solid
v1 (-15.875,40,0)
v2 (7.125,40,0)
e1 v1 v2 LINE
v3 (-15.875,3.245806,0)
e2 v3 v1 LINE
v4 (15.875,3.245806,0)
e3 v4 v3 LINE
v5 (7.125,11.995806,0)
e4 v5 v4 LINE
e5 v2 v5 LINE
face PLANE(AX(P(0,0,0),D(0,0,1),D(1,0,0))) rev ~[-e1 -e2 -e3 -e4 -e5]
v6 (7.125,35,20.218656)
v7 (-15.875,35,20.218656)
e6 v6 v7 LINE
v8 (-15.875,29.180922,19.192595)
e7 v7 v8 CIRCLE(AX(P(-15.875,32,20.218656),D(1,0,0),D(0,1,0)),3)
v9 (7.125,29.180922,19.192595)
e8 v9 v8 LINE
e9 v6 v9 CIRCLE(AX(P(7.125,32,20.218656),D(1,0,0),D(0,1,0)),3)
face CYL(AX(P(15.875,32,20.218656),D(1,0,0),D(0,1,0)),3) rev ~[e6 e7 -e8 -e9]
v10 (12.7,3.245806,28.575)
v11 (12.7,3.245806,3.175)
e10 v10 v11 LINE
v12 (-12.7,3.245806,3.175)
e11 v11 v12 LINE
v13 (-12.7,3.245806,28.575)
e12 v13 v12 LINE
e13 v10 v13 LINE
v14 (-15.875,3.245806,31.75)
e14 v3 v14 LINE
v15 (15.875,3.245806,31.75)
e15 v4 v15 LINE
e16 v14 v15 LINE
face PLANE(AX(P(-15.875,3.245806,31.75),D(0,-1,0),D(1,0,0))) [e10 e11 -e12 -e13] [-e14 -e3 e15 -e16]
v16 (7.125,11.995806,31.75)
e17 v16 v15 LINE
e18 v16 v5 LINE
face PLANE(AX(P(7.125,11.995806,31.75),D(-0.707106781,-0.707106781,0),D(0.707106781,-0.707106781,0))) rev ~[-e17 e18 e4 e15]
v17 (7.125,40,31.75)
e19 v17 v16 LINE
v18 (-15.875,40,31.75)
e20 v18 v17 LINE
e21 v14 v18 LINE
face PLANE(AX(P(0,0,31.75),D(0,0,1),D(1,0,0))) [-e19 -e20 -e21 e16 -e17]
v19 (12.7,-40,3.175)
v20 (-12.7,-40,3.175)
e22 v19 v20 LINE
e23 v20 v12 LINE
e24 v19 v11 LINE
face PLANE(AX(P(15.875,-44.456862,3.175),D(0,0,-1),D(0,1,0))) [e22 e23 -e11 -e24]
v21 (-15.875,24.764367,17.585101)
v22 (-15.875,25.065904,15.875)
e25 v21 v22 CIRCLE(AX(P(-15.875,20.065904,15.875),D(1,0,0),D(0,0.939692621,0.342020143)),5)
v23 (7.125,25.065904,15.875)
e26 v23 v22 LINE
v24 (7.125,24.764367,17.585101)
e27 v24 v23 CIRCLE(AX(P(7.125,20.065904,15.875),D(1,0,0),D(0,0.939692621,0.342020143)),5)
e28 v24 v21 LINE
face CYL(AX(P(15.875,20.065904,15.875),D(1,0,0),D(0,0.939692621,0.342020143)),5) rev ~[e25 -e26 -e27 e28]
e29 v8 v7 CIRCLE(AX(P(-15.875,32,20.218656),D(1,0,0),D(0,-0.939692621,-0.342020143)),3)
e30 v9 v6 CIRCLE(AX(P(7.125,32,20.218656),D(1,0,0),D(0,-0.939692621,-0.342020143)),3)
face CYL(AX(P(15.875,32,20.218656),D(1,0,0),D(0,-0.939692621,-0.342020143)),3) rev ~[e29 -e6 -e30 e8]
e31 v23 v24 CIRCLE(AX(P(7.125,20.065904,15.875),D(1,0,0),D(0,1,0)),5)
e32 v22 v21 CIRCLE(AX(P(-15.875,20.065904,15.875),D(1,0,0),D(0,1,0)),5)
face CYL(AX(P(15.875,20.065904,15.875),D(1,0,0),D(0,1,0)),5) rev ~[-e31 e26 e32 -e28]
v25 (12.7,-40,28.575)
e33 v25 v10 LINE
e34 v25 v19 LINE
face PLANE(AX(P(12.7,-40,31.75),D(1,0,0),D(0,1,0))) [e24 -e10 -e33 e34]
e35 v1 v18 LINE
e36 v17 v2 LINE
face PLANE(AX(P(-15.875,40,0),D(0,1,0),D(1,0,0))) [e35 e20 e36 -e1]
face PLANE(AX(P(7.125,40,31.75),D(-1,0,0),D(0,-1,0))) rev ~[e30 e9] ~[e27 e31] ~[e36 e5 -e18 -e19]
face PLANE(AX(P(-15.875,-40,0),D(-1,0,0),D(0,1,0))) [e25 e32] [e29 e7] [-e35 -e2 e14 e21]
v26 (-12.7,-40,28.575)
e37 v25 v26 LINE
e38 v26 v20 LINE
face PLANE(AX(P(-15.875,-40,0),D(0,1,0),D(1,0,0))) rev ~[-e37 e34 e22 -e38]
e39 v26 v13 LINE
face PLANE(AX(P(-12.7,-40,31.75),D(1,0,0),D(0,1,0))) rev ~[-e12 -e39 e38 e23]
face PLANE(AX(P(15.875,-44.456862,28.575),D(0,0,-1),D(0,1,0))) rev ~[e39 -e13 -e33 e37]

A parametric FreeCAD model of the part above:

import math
import FreeCAD as App
import Part
import Sketcher

V = App.Vector
Q = App.Units.Quantity

doc = App.newDocument("Part")
params = doc.addObject("Spreadsheet::Sheet", "Params")
for row, (alias, value) in enumerate([
    ("sketch1_height", "80 mm"),
    ("sketch1_width", "31.75 mm"),
    ("pad1_length", "31.75 mm"),
    ("sketch2_radius", "5 mm"),
    ("sketch2_radius2", "3 mm"),
    ("sketch3_height", "10 mm"),
    ("sketch3_width", "25.4 mm"),
    ("sketch5_width", "8.75 mm"),
], start=1):
    params.set(f"A{row}", alias)
    params.set(f"B{row}", "=" + value)
    params.setAlias(f"B{row}", alias)

body = doc.addObject("PartDesign::Body", "Body")

sketch1 = body.newObject("Sketcher::SketchObject", "Sketch")
sketch1.AttachmentSupport = (doc.getObject("XY_Plane"), [""])
sketch1.MapMode = "FlatFace"
sketch1.addGeometry([
    Part.LineSegment(V(-16, 40, 0), V(-16, -40, 0)),
    Part.LineSegment(V(-16, -40, 0), V(16, -40, 0)),
    Part.LineSegment(V(16, -40, 0), V(16, 40, 0)),
    Part.LineSegment(V(16, 40, 0), V(-16, 40, 0)),
], False)
sketch1.addConstraint([
    Sketcher.Constraint("Coincident", 0, 2, 1, 1),
    Sketcher.Constraint("Coincident", 1, 2, 2, 1),
    Sketcher.Constraint("Coincident", 2, 2, 3, 1),
    Sketcher.Constraint("Coincident", 3, 2, 0, 1),
    Sketcher.Constraint("Vertical", 0),
    Sketcher.Constraint("Horizontal", 1),
    Sketcher.Constraint("Vertical", 2),
    Sketcher.Constraint("Horizontal", 3),
    Sketcher.Constraint("Symmetric", 0, 2, 2, 2, -1, 1),
    Sketcher.Constraint("DistanceY", 0, 2, 0, 1, 80.0),
    Sketcher.Constraint("DistanceX", 1, 1, 1, 2, 31.75),
])
sketch1.setExpression("Constraints[9]", "Params.sketch1_height")
sketch1.setExpression("Constraints[10]", "Params.sketch1_width")
pad1 = body.newObject("PartDesign::Pad", "Pad")
pad1.Profile = sketch1
pad1.setExpression("Length", "Params.pad1_length")

sketch2 = body.newObject("Sketcher::SketchObject", "Sketch001")
sketch2.AttachmentSupport = (doc.getObject("YZ_Plane"), [""])
sketch2.MapMode = "FlatFace"
sketch2.AttachmentOffset = App.Placement(V(0, 0, 15.875), App.Rotation())
sketch2.addGeometry([
    Part.ArcOfCircle(Part.Circle(V(20.1, 15.9, 0), V(0, 0, 1), 5), math.radians(0), math.radians(20)),
    Part.ArcOfCircle(Part.Circle(V(20.1, 15.9, 0), V(0, 0, 1), 5), math.radians(20), math.radians(360)),
    Part.ArcOfCircle(Part.Circle(V(32, 20.2, 0), V(0, 0, 1), 3), math.radians(0), math.radians(200)),
    Part.ArcOfCircle(Part.Circle(V(32, 20.2, 0), V(0, 0, 1), 3), math.radians(-160), math.radians(0)),
], False)
sketch2.addConstraint([
    Sketcher.Constraint("Tangent", 0, 1, 1, 2),
    Sketcher.Constraint("Coincident", 1, 1, 0, 2),
    Sketcher.Constraint("Tangent", 2, 1, 3, 2),
    Sketcher.Constraint("Coincident", 3, 1, 2, 2),
    Sketcher.Constraint("Horizontal", 1, 3, 0, 1),
    Sketcher.Constraint("Horizontal", 3, 3, 2, 1),
    Sketcher.Constraint("Radius", 0, 5.0),
    Sketcher.Constraint("Radius", 2, 3.0),
    Sketcher.Constraint("DistanceX", -1, 1, 2, 3, 32.0),
    Sketcher.Constraint("DistanceY", -1, 1, 0, 3, 15.875),
    Sketcher.Constraint("DistanceY", -1, 1, 1, 1, 17.585101),
    Sketcher.Constraint("DistanceY", 3, 1, 2, 3, 1.02606),
    Sketcher.Constraint("DistanceX", 0, 1, 3, 1, 4.115018),
    Sketcher.Constraint("DistanceY", -1, 1, 2, 3, 20.218656),
])
sketch2.setExpression("Constraints[6]", "Params.sketch2_radius")
sketch2.setExpression("Constraints[7]", "Params.sketch2_radius2")
pocket1 = body.newObject("PartDesign::Pocket", "Pocket")
pocket1.Profile = sketch2
pocket1.Type = "ThroughAll"

sketch3 = body.newObject("Sketcher::SketchObject", "Sketch002")
sketch3.AttachmentSupport = (doc.getObject("XY_Plane"), [""])
sketch3.MapMode = "FlatFace"
sketch3.AttachmentOffset = App.Placement(V(0, 0, 31.75), App.Rotation())
sketch3.addGeometry([
    Part.LineSegment(V(-12.7, -40, 0), V(-12.7, -50, 0)),
    Part.LineSegment(V(-12.7, -50, 0), V(12.7, -50, 0)),
    Part.LineSegment(V(12.7, -50, 0), V(12.7, -40, 0)),
    Part.LineSegment(V(12.7, -40, 0), V(-12.7, -40, 0)),
    Part.LineSegment(V(12.7, 3.2, 0), V(12.7, -40, 0)),
    Part.LineSegment(V(12.7, -40, 0), V(15.9, -40, 0)),
    Part.LineSegment(V(15.9, -40, 0), V(15.9, 3.2, 0)),
    Part.LineSegment(V(15.9, 3.2, 0), V(12.7, 3.2, 0)),
    Part.LineSegment(V(-15.9, 3.2, 0), V(-15.9, -40, 0)),
    Part.LineSegment(V(-15.9, -40, 0), V(-12.7, -40, 0)),
    Part.LineSegment(V(-12.7, -40, 0), V(-12.7, 3.2, 0)),
    Part.LineSegment(V(-12.7, 3.2, 0), V(-15.9, 3.2, 0)),
], False)
sketch3.addConstraint([
    Sketcher.Constraint("Coincident", 0, 2, 1, 1),
    Sketcher.Constraint("Coincident", 1, 2, 2, 1),
    Sketcher.Constraint("Coincident", 2, 2, 3, 1),
    Sketcher.Constraint("Coincident", 3, 2, 0, 1),
    Sketcher.Constraint("Coincident", 4, 2, 5, 1),
    Sketcher.Constraint("Coincident", 5, 2, 6, 1),
    Sketcher.Constraint("Coincident", 6, 2, 7, 1),
    Sketcher.Constraint("Coincident", 7, 2, 4, 1),
    Sketcher.Constraint("Coincident", 8, 2, 9, 1),
    Sketcher.Constraint("Coincident", 9, 2, 10, 1),
    Sketcher.Constraint("Coincident", 10, 2, 11, 1),
    Sketcher.Constraint("Coincident", 11, 2, 8, 1),
    Sketcher.Constraint("Vertical", 0),
    Sketcher.Constraint("Horizontal", 1),
    Sketcher.Constraint("Vertical", 2),
    Sketcher.Constraint("Horizontal", 3),
    Sketcher.Constraint("Vertical", 4),
    Sketcher.Constraint("Horizontal", 5),
    Sketcher.Constraint("Vertical", 6),
    Sketcher.Constraint("Horizontal", 7),
    Sketcher.Constraint("Vertical", 8),
    Sketcher.Constraint("Horizontal", 9),
    Sketcher.Constraint("Vertical", 10),
    Sketcher.Constraint("Horizontal", 11),
    Sketcher.Constraint("Coincident", 4, 2, 2, 2),
    Sketcher.Constraint("Coincident", 9, 2, 3, 2),
    Sketcher.Constraint("Symmetric", 7, 2, 10, 2, -2),
    Sketcher.Constraint("Equal", 7, 9),
    Sketcher.Constraint("DistanceY", 0, 2, 0, 1, 10.0),
    Sketcher.Constraint("DistanceX", 1, 1, 1, 2, 25.4),
    Sketcher.Constraint("DistanceY", 0, 2, -1, 1, 50.0),
    Sketcher.Constraint("DistanceX", 5, 1, 5, 2, 3.175),
    Sketcher.Constraint("DistanceY", 4, 2, 4, 1, 43.245806),
])
sketch3.setExpression("Constraints[28]", "Params.sketch3_height")
sketch3.setExpression("Constraints[29]", "Params.sketch3_width")
pocket2 = body.newObject("PartDesign::Pocket", "Pocket001")
pocket2.Profile = sketch3
pocket2.Type = "ThroughAll"

sketch4 = body.newObject("Sketcher::SketchObject", "Sketch003")
sketch4.AttachmentSupport = (doc.getObject("YZ_Plane"), [""])
sketch4.MapMode = "FlatFace"
sketch4.AttachmentOffset = App.Placement(V(0, 0, 15.875), App.Rotation())
sketch4.addGeometry([
    Part.LineSegment(V(-44, 41, 0), V(-44, 29, 0)),
    Part.LineSegment(V(-44, 29, 0), V(3, 29, 0)),
    Part.LineSegment(V(3, 29, 0), V(3, 41, 0)),
    Part.LineSegment(V(3, 41, 0), V(-44, 41, 0)),
    Part.LineSegment(V(-44, 3, 0), V(-44, -7, 0)),
    Part.LineSegment(V(-44, -7, 0), V(3, -7, 0)),
    Part.LineSegment(V(3, -7, 0), V(3, 3, 0)),
    Part.LineSegment(V(3, 3, 0), V(-44, 3, 0)),
], False)
sketch4.addConstraint([
    Sketcher.Constraint("Coincident", 0, 2, 1, 1),
    Sketcher.Constraint("Coincident", 1, 2, 2, 1),
    Sketcher.Constraint("Coincident", 2, 2, 3, 1),
    Sketcher.Constraint("Coincident", 3, 2, 0, 1),
    Sketcher.Constraint("Coincident", 4, 2, 5, 1),
    Sketcher.Constraint("Coincident", 5, 2, 6, 1),
    Sketcher.Constraint("Coincident", 6, 2, 7, 1),
    Sketcher.Constraint("Coincident", 7, 2, 4, 1),
    Sketcher.Constraint("Vertical", 0),
    Sketcher.Constraint("Horizontal", 1),
    Sketcher.Constraint("Vertical", 2),
    Sketcher.Constraint("Horizontal", 3),
    Sketcher.Constraint("Vertical", 4),
    Sketcher.Constraint("Horizontal", 5),
    Sketcher.Constraint("Vertical", 6),
    Sketcher.Constraint("Horizontal", 7),
    Sketcher.Constraint("Vertical", 3, 2, 4, 2),
    Sketcher.Constraint("Vertical", 2, 2, 5, 2),
    Sketcher.Constraint("DistanceY", 6, 2, 1, 2, 25.4),
    Sketcher.Constraint("DistanceY", -1, 1, 0, 2, 28.575),
    Sketcher.Constraint("DistanceY", 4, 2, 4, 1, 10.41351),
    Sketcher.Constraint("DistanceX", 1, 1, 1, 2, 47.702668),
    Sketcher.Constraint("DistanceY", 0, 2, 0, 1, 12.140065),
    Sketcher.Constraint("DistanceX", 0, 2, -1, 1, 44.456862),
])
pocket3 = body.newObject("PartDesign::Pocket", "Pocket002")
pocket3.Profile = sketch4
pocket3.Type = "ThroughAll"

sketch5 = body.newObject("Sketcher::SketchObject", "Sketch004")
sketch5.AttachmentSupport = (doc.getObject("XY_Plane"), [""])
sketch5.MapMode = "FlatFace"
sketch5.AttachmentOffset = App.Placement(V(0, 0, 31.75), App.Rotation())
sketch5.addGeometry([
    Part.LineSegment(V(16, 3, 0), V(16, 40, 0)),
    Part.LineSegment(V(16, 40, 0), V(7, 40, 0)),
    Part.LineSegment(V(7, 40, 0), V(7, 12, 0)),
    Part.LineSegment(V(7, 12, 0), V(16, 3, 0)),
], False)
sketch5.addConstraint([
    Sketcher.Constraint("Coincident", 0, 2, 1, 1),
    Sketcher.Constraint("Coincident", 1, 2, 2, 1),
    Sketcher.Constraint("Coincident", 2, 2, 3, 1),
    Sketcher.Constraint("Coincident", 3, 2, 0, 1),
    Sketcher.Constraint("Vertical", 0),
    Sketcher.Constraint("Horizontal", 1),
    Sketcher.Constraint("Vertical", 2),
    Sketcher.Constraint("Angle", 3, Q("-45 deg")),
    Sketcher.Constraint("DistanceY", -1, 1, 0, 2, 40.0),
    Sketcher.Constraint("DistanceX", 1, 2, 1, 1, 8.75),
    Sketcher.Constraint("DistanceX", -1, 1, 0, 2, 15.875),
    Sketcher.Constraint("DistanceY", 0, 1, 0, 2, 36.754194),
])
sketch5.setExpression("Constraints[9]", "Params.sketch5_width")
pocket4 = body.newObject("PartDesign::Pocket", "Pocket003")
pocket4.Profile = sketch5
pocket4.Type = "ThroughAll"

doc.recompute()
